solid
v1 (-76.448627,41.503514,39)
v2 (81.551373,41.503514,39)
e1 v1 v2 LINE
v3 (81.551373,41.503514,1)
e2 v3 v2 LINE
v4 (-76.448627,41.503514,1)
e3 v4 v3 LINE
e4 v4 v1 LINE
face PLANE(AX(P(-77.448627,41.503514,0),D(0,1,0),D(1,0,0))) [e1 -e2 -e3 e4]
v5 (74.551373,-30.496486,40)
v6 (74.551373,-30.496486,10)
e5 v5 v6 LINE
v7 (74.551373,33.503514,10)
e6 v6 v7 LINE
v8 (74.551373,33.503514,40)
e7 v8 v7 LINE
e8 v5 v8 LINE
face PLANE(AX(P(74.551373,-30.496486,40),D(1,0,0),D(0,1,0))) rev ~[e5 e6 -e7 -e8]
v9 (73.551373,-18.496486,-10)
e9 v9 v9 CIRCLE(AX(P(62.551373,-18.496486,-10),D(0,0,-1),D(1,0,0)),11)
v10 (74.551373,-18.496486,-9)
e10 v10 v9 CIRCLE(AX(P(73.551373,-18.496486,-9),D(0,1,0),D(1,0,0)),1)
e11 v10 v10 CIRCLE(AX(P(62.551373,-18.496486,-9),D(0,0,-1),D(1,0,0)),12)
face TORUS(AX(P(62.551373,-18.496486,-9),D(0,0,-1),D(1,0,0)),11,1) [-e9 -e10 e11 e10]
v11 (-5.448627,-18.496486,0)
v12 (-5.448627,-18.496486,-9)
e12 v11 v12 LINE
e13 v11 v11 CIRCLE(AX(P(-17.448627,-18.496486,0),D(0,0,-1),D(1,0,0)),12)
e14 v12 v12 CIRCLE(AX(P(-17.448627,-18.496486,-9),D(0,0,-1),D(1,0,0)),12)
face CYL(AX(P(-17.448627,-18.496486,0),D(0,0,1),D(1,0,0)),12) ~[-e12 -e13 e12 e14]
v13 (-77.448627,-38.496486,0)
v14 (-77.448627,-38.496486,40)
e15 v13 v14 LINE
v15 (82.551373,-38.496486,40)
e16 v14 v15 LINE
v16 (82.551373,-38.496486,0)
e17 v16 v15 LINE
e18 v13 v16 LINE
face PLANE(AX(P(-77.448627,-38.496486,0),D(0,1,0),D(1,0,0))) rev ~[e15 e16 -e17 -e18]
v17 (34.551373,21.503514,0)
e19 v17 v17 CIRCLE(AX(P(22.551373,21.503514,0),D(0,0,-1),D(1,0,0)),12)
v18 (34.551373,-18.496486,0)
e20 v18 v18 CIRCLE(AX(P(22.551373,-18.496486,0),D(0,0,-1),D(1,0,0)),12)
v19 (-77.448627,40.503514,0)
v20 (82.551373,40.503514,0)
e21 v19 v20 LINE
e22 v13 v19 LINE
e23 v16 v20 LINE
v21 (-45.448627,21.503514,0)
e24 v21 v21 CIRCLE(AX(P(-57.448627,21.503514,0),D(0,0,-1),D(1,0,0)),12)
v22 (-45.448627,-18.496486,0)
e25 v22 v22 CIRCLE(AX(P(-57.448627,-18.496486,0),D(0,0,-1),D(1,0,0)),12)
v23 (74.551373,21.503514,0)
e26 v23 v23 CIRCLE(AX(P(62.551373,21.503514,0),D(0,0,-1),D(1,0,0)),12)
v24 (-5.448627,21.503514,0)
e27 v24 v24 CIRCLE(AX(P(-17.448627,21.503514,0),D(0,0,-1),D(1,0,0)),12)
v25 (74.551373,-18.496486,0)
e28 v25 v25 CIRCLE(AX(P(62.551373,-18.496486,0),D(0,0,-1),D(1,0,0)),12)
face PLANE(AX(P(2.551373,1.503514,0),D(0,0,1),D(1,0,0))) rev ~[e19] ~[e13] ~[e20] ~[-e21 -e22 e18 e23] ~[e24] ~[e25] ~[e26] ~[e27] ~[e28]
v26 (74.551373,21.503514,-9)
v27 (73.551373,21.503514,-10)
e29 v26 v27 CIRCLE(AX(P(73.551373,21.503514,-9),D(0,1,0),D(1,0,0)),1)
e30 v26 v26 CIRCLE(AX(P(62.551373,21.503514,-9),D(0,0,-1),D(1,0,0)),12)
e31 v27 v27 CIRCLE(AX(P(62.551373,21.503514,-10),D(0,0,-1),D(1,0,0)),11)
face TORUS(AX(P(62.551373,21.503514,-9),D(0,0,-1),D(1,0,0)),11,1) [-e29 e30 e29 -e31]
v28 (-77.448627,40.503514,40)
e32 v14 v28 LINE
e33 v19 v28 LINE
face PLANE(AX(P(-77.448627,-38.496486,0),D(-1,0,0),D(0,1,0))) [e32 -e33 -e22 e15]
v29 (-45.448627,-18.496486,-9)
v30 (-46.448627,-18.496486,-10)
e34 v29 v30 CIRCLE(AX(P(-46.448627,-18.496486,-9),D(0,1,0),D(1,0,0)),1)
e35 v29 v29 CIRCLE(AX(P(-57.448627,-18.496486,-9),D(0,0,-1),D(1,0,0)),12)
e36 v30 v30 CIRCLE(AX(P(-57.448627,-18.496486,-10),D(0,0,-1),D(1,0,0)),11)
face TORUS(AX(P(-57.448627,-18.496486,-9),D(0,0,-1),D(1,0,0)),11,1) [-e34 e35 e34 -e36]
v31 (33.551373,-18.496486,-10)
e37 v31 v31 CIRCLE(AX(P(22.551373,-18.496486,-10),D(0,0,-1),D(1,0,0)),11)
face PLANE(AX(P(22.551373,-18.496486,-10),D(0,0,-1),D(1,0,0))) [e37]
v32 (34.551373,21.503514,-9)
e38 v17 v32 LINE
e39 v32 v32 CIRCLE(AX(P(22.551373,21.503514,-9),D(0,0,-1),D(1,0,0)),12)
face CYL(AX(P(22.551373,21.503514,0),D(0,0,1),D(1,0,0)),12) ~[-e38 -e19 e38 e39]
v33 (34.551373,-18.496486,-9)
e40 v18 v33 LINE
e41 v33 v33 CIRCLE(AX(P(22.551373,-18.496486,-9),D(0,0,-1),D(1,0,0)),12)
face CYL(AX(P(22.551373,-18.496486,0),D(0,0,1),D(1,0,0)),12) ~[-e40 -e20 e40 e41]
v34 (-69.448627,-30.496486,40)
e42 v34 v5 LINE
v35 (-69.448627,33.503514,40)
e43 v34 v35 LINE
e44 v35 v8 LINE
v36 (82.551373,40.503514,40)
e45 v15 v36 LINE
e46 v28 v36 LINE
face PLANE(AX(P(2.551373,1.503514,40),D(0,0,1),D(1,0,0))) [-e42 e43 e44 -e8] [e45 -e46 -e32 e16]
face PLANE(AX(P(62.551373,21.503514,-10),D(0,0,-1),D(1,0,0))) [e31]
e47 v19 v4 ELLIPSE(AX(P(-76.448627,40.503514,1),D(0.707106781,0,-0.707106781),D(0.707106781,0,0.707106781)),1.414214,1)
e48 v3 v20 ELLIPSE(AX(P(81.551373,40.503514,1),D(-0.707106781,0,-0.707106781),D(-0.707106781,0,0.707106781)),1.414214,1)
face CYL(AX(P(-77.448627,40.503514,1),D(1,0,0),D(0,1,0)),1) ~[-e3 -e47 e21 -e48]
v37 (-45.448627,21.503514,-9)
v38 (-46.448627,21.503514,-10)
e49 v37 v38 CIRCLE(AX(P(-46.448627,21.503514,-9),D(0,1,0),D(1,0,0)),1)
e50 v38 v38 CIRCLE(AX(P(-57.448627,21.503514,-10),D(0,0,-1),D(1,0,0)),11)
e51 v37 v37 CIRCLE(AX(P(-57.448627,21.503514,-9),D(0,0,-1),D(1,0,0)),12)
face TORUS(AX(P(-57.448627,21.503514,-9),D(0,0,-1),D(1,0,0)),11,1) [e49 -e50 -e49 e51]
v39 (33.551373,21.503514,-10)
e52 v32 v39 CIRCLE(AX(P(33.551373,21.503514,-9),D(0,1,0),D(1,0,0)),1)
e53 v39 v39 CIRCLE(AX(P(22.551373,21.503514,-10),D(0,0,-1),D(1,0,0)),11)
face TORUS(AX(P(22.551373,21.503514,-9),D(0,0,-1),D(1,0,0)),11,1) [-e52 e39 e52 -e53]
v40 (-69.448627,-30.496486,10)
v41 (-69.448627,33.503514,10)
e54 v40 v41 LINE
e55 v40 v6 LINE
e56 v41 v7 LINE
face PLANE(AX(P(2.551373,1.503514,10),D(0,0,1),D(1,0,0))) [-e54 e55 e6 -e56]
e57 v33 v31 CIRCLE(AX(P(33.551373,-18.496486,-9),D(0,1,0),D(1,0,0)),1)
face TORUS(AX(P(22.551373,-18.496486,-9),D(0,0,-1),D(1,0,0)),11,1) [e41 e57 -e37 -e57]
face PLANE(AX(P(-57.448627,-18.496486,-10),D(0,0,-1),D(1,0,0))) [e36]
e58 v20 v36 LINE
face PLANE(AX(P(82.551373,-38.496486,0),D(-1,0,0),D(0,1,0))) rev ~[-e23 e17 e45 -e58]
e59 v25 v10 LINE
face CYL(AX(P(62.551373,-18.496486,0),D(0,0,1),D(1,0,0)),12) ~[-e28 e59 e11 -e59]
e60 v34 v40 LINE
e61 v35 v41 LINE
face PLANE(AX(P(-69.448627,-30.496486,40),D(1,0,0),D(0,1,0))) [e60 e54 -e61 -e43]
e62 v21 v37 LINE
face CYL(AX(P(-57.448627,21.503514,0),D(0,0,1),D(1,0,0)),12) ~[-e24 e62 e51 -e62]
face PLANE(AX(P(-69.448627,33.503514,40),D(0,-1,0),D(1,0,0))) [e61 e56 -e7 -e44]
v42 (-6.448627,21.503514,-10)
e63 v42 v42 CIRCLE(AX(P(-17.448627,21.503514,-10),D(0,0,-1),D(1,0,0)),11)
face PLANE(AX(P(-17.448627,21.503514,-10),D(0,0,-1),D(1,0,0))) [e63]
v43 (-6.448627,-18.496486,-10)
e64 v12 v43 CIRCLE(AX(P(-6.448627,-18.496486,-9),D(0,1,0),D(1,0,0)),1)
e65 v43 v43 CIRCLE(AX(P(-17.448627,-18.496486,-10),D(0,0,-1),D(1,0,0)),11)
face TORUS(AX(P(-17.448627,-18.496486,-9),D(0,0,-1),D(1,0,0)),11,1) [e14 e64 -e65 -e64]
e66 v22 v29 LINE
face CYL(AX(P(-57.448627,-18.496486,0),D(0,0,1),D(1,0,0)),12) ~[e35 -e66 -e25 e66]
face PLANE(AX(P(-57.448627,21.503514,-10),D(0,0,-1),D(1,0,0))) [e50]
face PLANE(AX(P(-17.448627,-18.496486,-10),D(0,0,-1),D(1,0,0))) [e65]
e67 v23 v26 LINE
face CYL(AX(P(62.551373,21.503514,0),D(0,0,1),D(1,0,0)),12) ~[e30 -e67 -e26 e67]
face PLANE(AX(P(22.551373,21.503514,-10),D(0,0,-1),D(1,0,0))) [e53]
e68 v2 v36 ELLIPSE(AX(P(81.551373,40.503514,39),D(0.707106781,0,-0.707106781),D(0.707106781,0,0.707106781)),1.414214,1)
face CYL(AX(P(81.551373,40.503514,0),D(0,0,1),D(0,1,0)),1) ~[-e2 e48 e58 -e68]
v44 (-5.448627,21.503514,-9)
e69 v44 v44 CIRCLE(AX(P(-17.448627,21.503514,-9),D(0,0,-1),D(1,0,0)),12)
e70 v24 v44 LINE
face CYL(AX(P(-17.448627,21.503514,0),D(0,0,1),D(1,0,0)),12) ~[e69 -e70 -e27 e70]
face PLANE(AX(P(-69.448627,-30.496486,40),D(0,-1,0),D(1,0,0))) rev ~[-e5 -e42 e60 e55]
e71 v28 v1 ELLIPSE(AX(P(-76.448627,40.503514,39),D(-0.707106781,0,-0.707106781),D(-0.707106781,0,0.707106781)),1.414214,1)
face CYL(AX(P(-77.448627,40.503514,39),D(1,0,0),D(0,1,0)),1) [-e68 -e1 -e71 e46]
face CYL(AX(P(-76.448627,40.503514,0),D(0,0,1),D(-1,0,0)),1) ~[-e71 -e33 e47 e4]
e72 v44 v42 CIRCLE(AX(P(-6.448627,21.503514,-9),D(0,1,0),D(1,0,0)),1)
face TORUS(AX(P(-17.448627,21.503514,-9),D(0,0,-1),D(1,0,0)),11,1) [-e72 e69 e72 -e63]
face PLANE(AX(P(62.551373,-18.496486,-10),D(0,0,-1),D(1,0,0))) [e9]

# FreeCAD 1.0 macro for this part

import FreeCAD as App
import Part
import Sketcher

V = App.Vector
Q = App.Units.Quantity


def edges_at(feature, points):
    """Names of the edges that pass closest to the given points."""
    edges = feature.Shape.Edges
    near = lambda p: min(range(len(edges)), key=lambda i: edges[i].distToShape(Part.Vertex(*p))[0])
    return sorted({f"Edge{near(p) + 1}" for p in points})


def add_polygon(sketch, points):
    """Adds a closed chain of lines whose ends are joined by coincident constraints."""
    first, n = sketch.GeometryCount, len(points)
    for a, b in zip(points, points[1:] + points[:1]):
        sketch.addGeometry(Part.LineSegment(App.Vector(*a, 0), App.Vector(*b, 0)), False)
    for i in range(n):
        sketch.addConstraint(Sketcher.Constraint("Coincident", first + i, 2, first + (i + 1) % n, 1))

doc = App.newDocument("Part")
params = doc.addObject("Spreadsheet::Sheet", "Params")
for row, (alias, value) in enumerate([
    ("sketch1_width", "160 mm"),
    ("sketch1_height", "80 mm"),
    ("pad1_length", "40 mm"),
    ("sketch2_width", "144 mm"),
    ("sketch2_height", "64 mm"),
    ("pocket1_length", "30 mm"),
    ("sketch3_diameter", "24 mm"),
    ("pad2_length", "10 mm"),
    ("fillet_radius", "1 mm"),
], start=1):
    params.set(f"A{row}", alias)
    params.set(f"B{row}", "=" + value)
    params.setAlias(f"B{row}", alias)

body = doc.addObject("PartDesign::Body", "Body")

# Sketch on XY plane
sketch1 = body.newObject("Sketcher::SketchObject", "Sketch")
sketch1.AttachmentSupport = (doc.getObject("XY_Plane"), [""])
sketch1.MapMode = "FlatFace"
add_polygon(sketch1, [(-77.448627, 41.503514), (-77.448627, -38.496486), (82.551373, -38.496486), (82.551373, 41.503514)])  # lines 0-3
sketch1.addConstraint([
    Sketcher.Constraint("Vertical", 0),
    Sketcher.Constraint("Horizontal", 1),
    Sketcher.Constraint("Vertical", 2),
    Sketcher.Constraint("Horizontal", 3),
    Sketcher.Constraint("DistanceX", 1, 1, 1, 2, Q("160 mm")),
    Sketcher.Constraint("DistanceY", 0, 2, 0, 1, Q("80 mm")),
    Sketcher.Constraint("DistanceX", 0, 2, -1, 1, Q("77.448627 mm")),
    Sketcher.Constraint("DistanceY", 0, 2, -1, 1, Q("38.496486 mm")),
])
sketch1.setExpression("Constraints[8]", "Params.sketch1_width")
sketch1.setExpression("Constraints[9]", "Params.sketch1_height")
pad1 = body.newObject("PartDesign::Pad", "Pad")
pad1.Profile = sketch1
pad1.setExpression("Length", "Params.pad1_length")

# Sketch on XY plane
sketch2 = body.newObject("Sketcher::SketchObject", "Sketch001")
sketch2.AttachmentSupport = (doc.getObject("XY_Plane"), [""])
sketch2.MapMode = "FlatFace"
sketch2.AttachmentOffset = App.Placement(V(0, 0, 40), App.Rotation())
add_polygon(sketch2, [(-69.448627, 33.503514), (-69.448627, -30.496486), (74.551373, -30.496486), (74.551373, 33.503514)])  # lines 0-3
sketch2.addConstraint([
    Sketcher.Constraint("Vertical", 0),
    Sketcher.Constraint("Horizontal", 1),
    Sketcher.Constraint("Vertical", 2),
    Sketcher.Constraint("Horizontal", 3),
    Sketcher.Constraint("DistanceX", 1, 1, 1, 2, Q("144 mm")),
    Sketcher.Constraint("DistanceY", 0, 2, 0, 1, Q("64 mm")),
    Sketcher.Constraint("DistanceX", 0, 2, -1, 1, Q("69.448627 mm")),
    Sketcher.Constraint("DistanceY", 0, 2, -1, 1, Q("30.496486 mm")),
])
sketch2.setExpression("Constraints[8]", "Params.sketch2_width")
sketch2.setExpression("Constraints[9]", "Params.sketch2_height")
pocket1 = body.newObject("PartDesign::Pocket", "Pocket")
pocket1.Profile = sketch2
pocket1.setExpression("Length", "Params.pocket1_length")

# Sketch on XY plane
sketch3 = body.newObject("Sketcher::SketchObject", "Sketch002")
sketch3.AttachmentSupport = (doc.getObject("XY_Plane"), [""])
sketch3.MapMode = "FlatFace"
sketch3.addGeometry([
    Part.Circle(V(-57.448627, -18.496486, 0), V(0, 0, 1), 12),  # 0
    Part.Circle(V(-17.448627, -18.496486, 0), V(0, 0, 1), 12),  # 1
    Part.Circle(V(22.551373, -18.496486, 0), V(0, 0, 1), 12),  # 2
    Part.Circle(V(62.551373, -18.496486, 0), V(0, 0, 1), 12),  # 3
    Part.Circle(V(62.551373, 21.503514, 0), V(0, 0, 1), 12),  # 4
    Part.Circle(V(22.551373, 21.503514, 0), V(0, 0, 1), 12),  # 5
    Part.Circle(V(-17.448627, 21.503514, 0), V(0, 0, 1), 12),  # 6
    Part.Circle(V(-57.448627, 21.503514, 0), V(0, 0, 1), 12),  # 7
], False)
sketch3.addConstraint([
    Sketcher.Constraint("Equal", 0, 1),
    Sketcher.Constraint("Equal", 1, 2),
    Sketcher.Constraint("Equal", 2, 3),
    Sketcher.Constraint("Equal", 3, 4),
    Sketcher.Constraint("Equal", 4, 5),
    Sketcher.Constraint("Equal", 5, 6),
    Sketcher.Constraint("Equal", 6, 7),
    Sketcher.Constraint("Horizontal", 0, 3, 1, 3),
    Sketcher.Constraint("Horizontal", 1, 3, 2, 3),
    Sketcher.Constraint("Horizontal", 2, 3, 3, 3),
    Sketcher.Constraint("Horizontal", 4, 3, 5, 3),
    Sketcher.Constraint("Horizontal", 5, 3, 6, 3),
    Sketcher.Constraint("Horizontal", 6, 3, 7, 3),
    Sketcher.Constraint("Vertical", 3, 3, 4, 3),
    Sketcher.Constraint("Vertical", 2, 3, 5, 3),
    Sketcher.Constraint("Vertical", 1, 3, 6, 3),
    Sketcher.Constraint("Vertical", 0, 3, 7, 3),
    Sketcher.Constraint("Diameter", 0, Q("24 mm")),
    Sketcher.Constraint("DistanceX", 0, 3, 1, 3, Q("40 mm")),
    Sketcher.Constraint("DistanceX", 1, 3, 2, 3, Q("40 mm")),
    Sketcher.Constraint("DistanceX", 2, 3, 3, 3, Q("40 mm")),
    Sketcher.Constraint("DistanceY", 3, 3, 4, 3, Q("40 mm")),
    Sketcher.Constraint("DistanceX", 0, 3, -1, 1, Q("57.448627 mm")),
    Sketcher.Constraint("DistanceY", 0, 3, -1, 1, Q("18.496486 mm")),
])
sketch3.setExpression("Constraints[17]", "Params.sketch3_diameter")
pad2 = body.newObject("PartDesign::Pad", "Pad001")
pad2.Profile = sketch3
pad2.setExpression("Length", "Params.pad2_length")
pad2.Reversed = True
doc.recompute()

fillet = body.newObject("PartDesign::Fillet", "Fillet")
fillet.Base = (pad2, edges_at(pad2, [
    (82.551, 41.504, 20),
    (-77.449, 41.504, 20),
    (2.551, 41.504, 0),
    (2.551, 41.504, 40),
    (-29.449, -18.496, -10),
    (10.551, -18.496, -10),
    (50.551, -18.496, -10),
    (50.551, 21.504, -10),
    (10.551, 21.504, -10),
    (-29.449, 21.504, -10),
    (-69.449, 21.504, -10),
    (-69.449, -18.496, -10),
]))
fillet.setExpression("Radius", "Params.fillet_radius")

doc.recompute()
